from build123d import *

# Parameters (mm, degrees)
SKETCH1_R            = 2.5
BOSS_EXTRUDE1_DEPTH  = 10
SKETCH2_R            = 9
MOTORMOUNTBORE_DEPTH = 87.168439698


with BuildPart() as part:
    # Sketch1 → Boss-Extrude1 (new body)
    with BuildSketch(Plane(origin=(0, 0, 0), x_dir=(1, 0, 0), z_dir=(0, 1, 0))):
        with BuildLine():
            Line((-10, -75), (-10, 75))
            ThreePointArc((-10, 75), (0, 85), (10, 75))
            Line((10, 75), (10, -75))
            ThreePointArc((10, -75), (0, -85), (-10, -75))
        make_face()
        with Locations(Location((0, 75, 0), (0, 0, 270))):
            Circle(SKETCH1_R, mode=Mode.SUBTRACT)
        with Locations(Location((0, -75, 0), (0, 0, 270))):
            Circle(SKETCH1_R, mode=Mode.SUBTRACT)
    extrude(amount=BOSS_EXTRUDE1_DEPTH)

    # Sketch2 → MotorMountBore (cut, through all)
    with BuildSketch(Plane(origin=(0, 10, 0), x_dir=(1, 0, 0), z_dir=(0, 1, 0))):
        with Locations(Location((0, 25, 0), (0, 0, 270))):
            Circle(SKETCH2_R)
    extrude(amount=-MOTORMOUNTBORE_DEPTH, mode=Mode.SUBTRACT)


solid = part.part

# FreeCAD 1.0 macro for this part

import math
import FreeCAD as App
import Part
import Sketcher
from FreeCAD import Vector
Q = App.Units.Quantity

doc = App.newDocument("Part")
body = doc.addObject("PartDesign::Body", "Body")

# Sketch on XZ plane
sketch1 = body.newObject("Sketcher::SketchObject", "Sketch")
sketch1.AttachmentSupport = (doc.getObject("XZ_Plane"), [""])
sketch1.MapMode = "FlatFace"
sketch1.addGeometry(Part.LineSegment(Vector(-10, -75, 0), Vector(-10, 75, 0)), False)
sketch1.addGeometry(Part.ArcOfCircle(Part.Circle(Vector(0, 75, 0), Vector(0, 0, 1), 10), math.radians(0), math.radians(180)), False)
sketch1.addGeometry(Part.LineSegment(Vector(10, 75, 0), Vector(10, -75, 0)), False)
sketch1.addGeometry(Part.ArcOfCircle(Part.Circle(Vector(0, -75, 0), Vector(0, 0, 1), 10), math.radians(180), math.radians(360)), False)
sketch1.addGeometry(Part.Circle(Vector(0, 75, 0), Vector(0, 0, 1), 2.5), False)
sketch1.addGeometry(Part.Circle(Vector(0, -75, 0), Vector(0, 0, 1), 2.5), False)
sketch1.addConstraint(Sketcher.Constraint("Tangent", 0, 2, 1, 2))
sketch1.addConstraint(Sketcher.Constraint("Tangent", 1, 1, 2, 1))
sketch1.addConstraint(Sketcher.Constraint("Tangent", 2, 2, 3, 2))
sketch1.addConstraint(Sketcher.Constraint("Tangent", 3, 1, 0, 1))
sketch1.addConstraint(Sketcher.Constraint("Vertical", 0))
sketch1.addConstraint(Sketcher.Constraint("Vertical", 2))
sketch1.addConstraint(Sketcher.Constraint("Coincident", 4, 3, 1, 3))
sketch1.addConstraint(Sketcher.Constraint("Coincident", 5, 3, 3, 3))
sketch1.addConstraint(Sketcher.Constraint("Equal", 4, 5))
sketch1.addConstraint(Sketcher.Constraint("Symmetric", 1, 3, 3, 3, -1, 1))
sketch1.addConstraint(Sketcher.Constraint("Diameter", 4, Q("5 mm")))
sketch1.addConstraint(Sketcher.Constraint("Radius", 1, Q("10 mm")))
sketch1.addConstraint(Sketcher.Constraint("DistanceY", 0, 1, 0, 2, Q("150 mm")))
pad1 = body.newObject("PartDesign::Pad", "Pad")
pad1.Profile = sketch1
pad1.Length = 10
pad1.Reversed = True

# Sketch on XZ plane
sketch2 = body.newObject("Sketcher::SketchObject", "Sketch001")
sketch2.AttachmentSupport = (doc.getObject("XZ_Plane"), [""])
sketch2.MapMode = "FlatFace"
sketch2.AttachmentOffset = App.Placement(Vector(0, 0, -10), App.Rotation())
sketch2.addGeometry(Part.Circle(Vector(0, -25, 0), Vector(0, 0, 1), 9), False)
sketch2.addConstraint(Sketcher.Constraint("PointOnObject", 0, 3, -2))
sketch2.addConstraint(Sketcher.Constraint("Diameter", 0, Q("18 mm")))
sketch2.addConstraint(Sketcher.Constraint("DistanceY", 0, 3, -1, 1, Q("25 mm")))
pocket1 = body.newObject("PartDesign::Pocket", "Pocket")
pocket1.Profile = sketch2
pocket1.Type = "ThroughAll"
pocket1.Reversed = True

doc.recompute()
